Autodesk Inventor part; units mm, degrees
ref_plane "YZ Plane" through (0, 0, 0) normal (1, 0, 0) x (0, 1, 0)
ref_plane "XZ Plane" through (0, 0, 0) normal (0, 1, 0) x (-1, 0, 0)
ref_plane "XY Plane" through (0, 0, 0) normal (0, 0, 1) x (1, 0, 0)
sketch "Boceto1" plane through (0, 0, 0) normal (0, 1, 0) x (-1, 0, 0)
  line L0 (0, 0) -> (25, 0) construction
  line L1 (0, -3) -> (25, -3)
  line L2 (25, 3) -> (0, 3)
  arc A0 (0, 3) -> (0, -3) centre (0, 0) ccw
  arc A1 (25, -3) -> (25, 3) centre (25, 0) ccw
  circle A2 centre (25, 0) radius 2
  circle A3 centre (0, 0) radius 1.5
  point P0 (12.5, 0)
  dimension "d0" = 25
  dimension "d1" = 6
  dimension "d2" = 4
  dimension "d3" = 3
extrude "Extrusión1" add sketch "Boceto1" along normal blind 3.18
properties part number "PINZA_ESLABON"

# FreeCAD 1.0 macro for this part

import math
import FreeCAD as App
import Part
import Sketcher
from FreeCAD import Vector

doc = App.newDocument("Part")
body = doc.addObject("PartDesign::Body", "Body")

# Sketch on XZ plane
sketch1 = doc.addObject("Sketcher::SketchObject", "Sketch")
body.addObject(sketch1)
sketch1.AttachmentSupport = (doc.XZ_Plane, [""])
sketch1.MapMode = "FlatFace"
sketch1.addGeometry(Part.ArcOfCircle(Part.Circle(Vector(0, 0, 0), Vector(0, 0, 1), 3), math.radians(-90), math.radians(90)), False)
sketch1.addGeometry(Part.LineSegment(Vector(0, -3, 0), Vector(-25, -3, 0)), False)
sketch1.addGeometry(Part.ArcOfCircle(Part.Circle(Vector(-25, 0, 0), Vector(0, 0, 1), 3), math.radians(90), math.radians(270)), False)
sketch1.addGeometry(Part.LineSegment(Vector(-25, 3, 0), Vector(0, 3, 0)), False)
sketch1.addGeometry(Part.Circle(Vector(0, 0, 0), Vector(0, 0, 1), 1.5), False)
sketch1.addGeometry(Part.Circle(Vector(-25, 0, 0), Vector(0, 0, 1), 2), False)
sketch1.addConstraint(Sketcher.Constraint("Tangent", 0, 1, 1, 1))
sketch1.addConstraint(Sketcher.Constraint("Tangent", 1, 2, 2, 2))
sketch1.addConstraint(Sketcher.Constraint("Tangent", 2, 1, 3, 1))
sketch1.addConstraint(Sketcher.Constraint("Tangent", 3, 2, 0, 2))
sketch1.addConstraint(Sketcher.Constraint("Horizontal", 1))
sketch1.addConstraint(Sketcher.Constraint("Horizontal", 3))
sketch1.addConstraint(Sketcher.Constraint("Coincident", 0, 3, -1, 1))
sketch1.addConstraint(Sketcher.Constraint("Coincident", 4, 3, -1, 1))
sketch1.addConstraint(Sketcher.Constraint("Coincident", 5, 3, 2, 3))
sketch1.addConstraint(Sketcher.Constraint("Diameter", 4, 3.0))
sketch1.addConstraint(Sketcher.Constraint("Diameter", 5, 4.0))
sketch1.addConstraint(Sketcher.Constraint("Radius", 0, 3.0))
sketch1.addConstraint(Sketcher.Constraint("DistanceX", 1, 2, 1, 1, 25.0))
pad1 = doc.addObject("PartDesign::Pad", "Pad")
body.addObject(pad1)
pad1.Profile = sketch1
pad1.Length = 3.18
pad1.Reversed = True

doc.recompute()
